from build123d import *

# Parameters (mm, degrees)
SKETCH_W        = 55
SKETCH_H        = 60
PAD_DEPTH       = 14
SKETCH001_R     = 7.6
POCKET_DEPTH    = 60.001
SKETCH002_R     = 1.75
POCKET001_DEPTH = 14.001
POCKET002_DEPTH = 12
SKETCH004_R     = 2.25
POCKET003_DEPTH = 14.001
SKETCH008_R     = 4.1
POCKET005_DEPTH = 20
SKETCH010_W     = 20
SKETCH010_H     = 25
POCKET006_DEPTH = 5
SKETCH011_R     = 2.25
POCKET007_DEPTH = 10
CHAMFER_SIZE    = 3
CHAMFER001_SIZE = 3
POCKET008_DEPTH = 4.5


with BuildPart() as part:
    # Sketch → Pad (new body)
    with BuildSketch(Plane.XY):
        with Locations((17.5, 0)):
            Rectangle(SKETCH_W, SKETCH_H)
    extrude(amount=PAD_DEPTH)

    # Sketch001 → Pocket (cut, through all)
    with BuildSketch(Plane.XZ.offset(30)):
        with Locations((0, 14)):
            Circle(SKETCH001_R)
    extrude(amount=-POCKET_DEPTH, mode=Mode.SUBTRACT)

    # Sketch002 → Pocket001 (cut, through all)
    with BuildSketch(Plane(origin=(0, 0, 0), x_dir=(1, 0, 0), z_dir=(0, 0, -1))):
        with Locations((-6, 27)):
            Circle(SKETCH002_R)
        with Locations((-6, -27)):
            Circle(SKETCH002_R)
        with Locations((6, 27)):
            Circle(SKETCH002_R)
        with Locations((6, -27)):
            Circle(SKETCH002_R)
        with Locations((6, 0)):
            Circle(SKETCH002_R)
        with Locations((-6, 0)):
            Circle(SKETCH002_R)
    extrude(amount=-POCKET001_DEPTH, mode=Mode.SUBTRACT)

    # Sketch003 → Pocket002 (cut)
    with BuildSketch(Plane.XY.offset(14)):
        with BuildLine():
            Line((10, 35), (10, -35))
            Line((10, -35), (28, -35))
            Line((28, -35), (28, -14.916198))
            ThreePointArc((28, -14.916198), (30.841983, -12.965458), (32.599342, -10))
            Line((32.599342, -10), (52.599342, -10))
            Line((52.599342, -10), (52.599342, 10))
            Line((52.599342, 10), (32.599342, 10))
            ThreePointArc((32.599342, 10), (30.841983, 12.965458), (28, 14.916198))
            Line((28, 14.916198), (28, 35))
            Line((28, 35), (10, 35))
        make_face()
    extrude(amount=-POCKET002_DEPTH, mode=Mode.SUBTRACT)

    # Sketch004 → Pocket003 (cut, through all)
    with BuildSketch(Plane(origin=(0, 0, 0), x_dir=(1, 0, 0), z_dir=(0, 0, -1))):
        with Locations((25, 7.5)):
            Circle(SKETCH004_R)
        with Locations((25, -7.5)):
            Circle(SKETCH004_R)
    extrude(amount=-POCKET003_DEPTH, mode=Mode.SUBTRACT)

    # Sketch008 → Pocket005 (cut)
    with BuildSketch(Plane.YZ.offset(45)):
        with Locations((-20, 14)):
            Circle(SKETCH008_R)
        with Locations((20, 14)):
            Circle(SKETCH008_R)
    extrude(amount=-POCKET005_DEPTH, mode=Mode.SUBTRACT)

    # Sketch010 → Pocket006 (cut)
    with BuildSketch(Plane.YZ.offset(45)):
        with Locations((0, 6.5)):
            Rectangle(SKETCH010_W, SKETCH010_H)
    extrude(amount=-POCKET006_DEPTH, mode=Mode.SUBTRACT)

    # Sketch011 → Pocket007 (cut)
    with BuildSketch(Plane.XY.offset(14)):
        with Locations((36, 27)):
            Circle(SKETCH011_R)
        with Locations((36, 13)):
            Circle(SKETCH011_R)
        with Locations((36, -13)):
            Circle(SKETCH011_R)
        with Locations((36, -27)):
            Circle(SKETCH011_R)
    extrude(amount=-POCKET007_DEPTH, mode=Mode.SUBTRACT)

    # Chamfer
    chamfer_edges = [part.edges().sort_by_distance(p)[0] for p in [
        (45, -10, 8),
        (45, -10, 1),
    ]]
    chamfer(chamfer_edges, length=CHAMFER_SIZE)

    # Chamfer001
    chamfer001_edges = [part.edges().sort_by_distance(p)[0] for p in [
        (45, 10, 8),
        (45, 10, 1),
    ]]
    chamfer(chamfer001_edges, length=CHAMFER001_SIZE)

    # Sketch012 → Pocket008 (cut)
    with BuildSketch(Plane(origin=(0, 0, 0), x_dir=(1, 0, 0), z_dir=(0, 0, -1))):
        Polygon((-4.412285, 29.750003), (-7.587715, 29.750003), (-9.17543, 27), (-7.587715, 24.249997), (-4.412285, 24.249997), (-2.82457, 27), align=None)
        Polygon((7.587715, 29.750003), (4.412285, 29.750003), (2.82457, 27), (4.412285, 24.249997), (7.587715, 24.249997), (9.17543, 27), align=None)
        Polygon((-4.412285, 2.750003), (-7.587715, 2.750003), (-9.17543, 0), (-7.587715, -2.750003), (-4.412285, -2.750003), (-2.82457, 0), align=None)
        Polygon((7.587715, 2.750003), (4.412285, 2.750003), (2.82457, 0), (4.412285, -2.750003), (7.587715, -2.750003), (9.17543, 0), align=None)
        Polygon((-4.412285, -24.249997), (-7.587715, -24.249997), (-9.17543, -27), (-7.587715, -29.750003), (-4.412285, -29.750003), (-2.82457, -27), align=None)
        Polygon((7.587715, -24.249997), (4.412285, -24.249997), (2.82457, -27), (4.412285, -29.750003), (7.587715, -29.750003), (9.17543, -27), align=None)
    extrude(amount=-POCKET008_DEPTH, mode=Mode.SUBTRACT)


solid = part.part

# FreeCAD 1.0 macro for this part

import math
import FreeCAD as App
import Part
import Sketcher
from FreeCAD import Vector
Q = App.Units.Quantity


def edges_at(feature, points):
    """Names of the edges that pass closest to the given points."""
    edges = feature.Shape.Edges
    near = lambda p: min(range(len(edges)), key=lambda i: edges[i].distToShape(Part.Vertex(*p))[0])
    return sorted({f"Edge{near(p) + 1}" for p in points})

doc = App.newDocument("Part")
body = doc.addObject("PartDesign::Body", "Body")

# Sketch on XY plane
sketch1 = body.newObject("Sketcher::SketchObject", "Sketch")
sketch1.AttachmentSupport = (doc.getObject("XY_Plane"), [""])
sketch1.MapMode = "FlatFace"
sketch1.addGeometry(Part.LineSegment(Vector(-10, 30, 0), Vector(-10, -30, 0)), False)
sketch1.addGeometry(Part.LineSegment(Vector(-10, -30, 0), Vector(45, -30, 0)), False)
sketch1.addGeometry(Part.LineSegment(Vector(45, -30, 0), Vector(45, 30, 0)), False)
sketch1.addGeometry(Part.LineSegment(Vector(45, 30, 0), Vector(-10, 30, 0)), False)
sketch1.addConstraint(Sketcher.Constraint("Coincident", 0, 2, 1, 1))
sketch1.addConstraint(Sketcher.Constraint("Coincident", 1, 2, 2, 1))
sketch1.addConstraint(Sketcher.Constraint("Coincident", 2, 2, 3, 1))
sketch1.addConstraint(Sketcher.Constraint("Coincident", 3, 2, 0, 1))
sketch1.addConstraint(Sketcher.Constraint("Vertical", 0))
sketch1.addConstraint(Sketcher.Constraint("Horizontal", 1))
sketch1.addConstraint(Sketcher.Constraint("Vertical", 2))
sketch1.addConstraint(Sketcher.Constraint("Horizontal", 3))
sketch1.addConstraint(Sketcher.Constraint("DistanceX", 1, 1, 1, 2, 55.0))
sketch1.addConstraint(Sketcher.Constraint("DistanceY", 0, 2, 0, 1, 60.0))
sketch1.addConstraint(Sketcher.Constraint("DistanceX", 0, 2, -1, 1, 10.0))
sketch1.addConstraint(Sketcher.Constraint("DistanceY", 0, 2, -1, 1, 30.0))
pad1 = body.newObject("PartDesign::Pad", "Pad")
pad1.Profile = sketch1
pad1.Length = 14

# Sketch on XZ plane
sketch2 = body.newObject("Sketcher::SketchObject", "Sketch001")
sketch2.AttachmentSupport = (doc.getObject("XZ_Plane"), [""])
sketch2.MapMode = "FlatFace"
sketch2.AttachmentOffset = App.Placement(Vector(0, 0, 30), App.Rotation())
sketch2.addGeometry(Part.Circle(Vector(0, 14, 0), Vector(0, 0, 1), 7.6), False)
sketch2.addConstraint(Sketcher.Constraint("PointOnObject", 0, 3, -2))
sketch2.addConstraint(Sketcher.Constraint("Diameter", 0, 15.2))
sketch2.addConstraint(Sketcher.Constraint("DistanceY", -1, 1, 0, 3, 14.0))
pocket1 = body.newObject("PartDesign::Pocket", "Pocket")
pocket1.Profile = sketch2
pocket1.Type = "ThroughAll"

# Sketch on XY plane
sketch3 = body.newObject("Sketcher::SketchObject", "Sketch002")
sketch3.AttachmentSupport = (doc.getObject("XY_Plane"), [""])
sketch3.MapMode = "FlatFace"
sketch3.addGeometry(Part.Circle(Vector(-6, -27, 0), Vector(0, 0, 1), 1.75), False)
sketch3.addGeometry(Part.Circle(Vector(-6, 27, 0), Vector(0, 0, 1), 1.75), False)
sketch3.addGeometry(Part.Circle(Vector(6, -27, 0), Vector(0, 0, 1), 1.75), False)
sketch3.addGeometry(Part.Circle(Vector(6, 27, 0), Vector(0, 0, 1), 1.75), False)
sketch3.addGeometry(Part.Circle(Vector(6, 0, 0), Vector(0, 0, 1), 1.75), False)
sketch3.addGeometry(Part.Circle(Vector(-6, 0, 0), Vector(0, 0, 1), 1.75), False)
sketch3.addConstraint(Sketcher.Constraint("Equal", 0, 1))
sketch3.addConstraint(Sketcher.Constraint("Equal", 1, 2))
sketch3.addConstraint(Sketcher.Constraint("Equal", 2, 3))
sketch3.addConstraint(Sketcher.Constraint("Equal", 3, 4))
sketch3.addConstraint(Sketcher.Constraint("Equal", 4, 5))
sketch3.addConstraint(Sketcher.Constraint("Symmetric", 1, 3, 2, 3, -1, 1))
sketch3.addConstraint(Sketcher.Constraint("Symmetric", 0, 3, 3, 3, -1, 1))
sketch3.addConstraint(Sketcher.Constraint("Symmetric", 4, 3, 5, 3, -1, 1))
sketch3.addConstraint(Sketcher.Constraint("Symmetric", 0, 3, 2, 3, -2))
sketch3.addConstraint(Sketcher.Constraint("PointOnObject", 4, 3, -1))
sketch3.addConstraint(Sketcher.Constraint("Vertical", 3, 3, 4, 3))
sketch3.addConstraint(Sketcher.Constraint("Diameter", 0, 3.5))
sketch3.addConstraint(Sketcher.Constraint("DistanceX", 0, 3, -1, 1, 6.0))
sketch3.addConstraint(Sketcher.Constraint("DistanceY", 0, 3, -1, 1, 27.0))
pocket2 = body.newObject("PartDesign::Pocket", "Pocket001")
pocket2.Profile = sketch3
pocket2.Type = "ThroughAll"
pocket2.Reversed = True

# Sketch on XY plane
sketch4 = body.newObject("Sketcher::SketchObject", "Sketch003")
sketch4.AttachmentSupport = (doc.getObject("XY_Plane"), [""])
sketch4.MapMode = "FlatFace"
sketch4.AttachmentOffset = App.Placement(Vector(0, 0, 14), App.Rotation())
sketch4.addGeometry(Part.LineSegment(Vector(10, 35, 0), Vector(10, -35, 0)), False)
sketch4.addGeometry(Part.LineSegment(Vector(10, -35, 0), Vector(28, -35, 0)), False)
sketch4.addGeometry(Part.LineSegment(Vector(28, -35, 0), Vector(28, -14.916198, 0)), False)
sketch4.addGeometry(Part.ArcOfCircle(Part.Circle(Vector(25.000001, -7.5, 0), Vector(0, 0, 1), 7.999999), math.radians(-67.97569), math.radians(-18.209958)), False)
sketch4.addGeometry(Part.LineSegment(Vector(32.599342, -10, 0), Vector(52.599342, -10, 0)), False)
sketch4.addGeometry(Part.LineSegment(Vector(52.599342, -10, 0), Vector(52.599342, 10, 0)), False)
sketch4.addGeometry(Part.LineSegment(Vector(52.599342, 10, 0), Vector(32.599342, 10, 0)), False)
sketch4.addGeometry(Part.ArcOfCircle(Part.Circle(Vector(25.000001, 7.5, 0), Vector(0, 0, 1), 7.999999), math.radians(18.209958), math.radians(67.97569)), False)
sketch4.addGeometry(Part.LineSegment(Vector(28, 14.916198, 0), Vector(28, 35, 0)), False)
sketch4.addGeometry(Part.LineSegment(Vector(28, 35, 0), Vector(10, 35, 0)), False)
sketch4.addConstraint(Sketcher.Constraint("Coincident", 0, 2, 1, 1))
sketch4.addConstraint(Sketcher.Constraint("Coincident", 1, 2, 2, 1))
sketch4.addConstraint(Sketcher.Constraint("Coincident", 2, 2, 3, 1))
sketch4.addConstraint(Sketcher.Constraint("Coincident", 3, 2, 4, 1))
sketch4.addConstraint(Sketcher.Constraint("Coincident", 4, 2, 5, 1))
sketch4.addConstraint(Sketcher.Constraint("Coincident", 5, 2, 6, 1))
sketch4.addConstraint(Sketcher.Constraint("Coincident", 6, 2, 7, 1))
sketch4.addConstraint(Sketcher.Constraint("Coincident", 7, 2, 8, 1))
sketch4.addConstraint(Sketcher.Constraint("Coincident", 8, 2, 9, 1))
sketch4.addConstraint(Sketcher.Constraint("Coincident", 9, 2, 0, 1))
sketch4.addConstraint(Sketcher.Constraint("Vertical", 0))
sketch4.addConstraint(Sketcher.Constraint("Horizontal", 1))
sketch4.addConstraint(Sketcher.Constraint("Vertical", 2))
sketch4.addConstraint(Sketcher.Constraint("Horizontal", 4))
sketch4.addConstraint(Sketcher.Constraint("Vertical", 5))
sketch4.addConstraint(Sketcher.Constraint("Horizontal", 6))
sketch4.addConstraint(Sketcher.Constraint("Vertical", 8))
sketch4.addConstraint(Sketcher.Constraint("Horizontal", 9))
sketch4.addConstraint(Sketcher.Constraint("Equal", 3, 7))
sketch4.addConstraint(Sketcher.Constraint("Symmetric", 3, 3, 7, 3, -1))
sketch4.addConstraint(Sketcher.Constraint("Symmetric", 1, 2, 8, 2, -1))
sketch4.addConstraint(Sketcher.Constraint("Vertical", 3, 2, 6, 2))
sketch4.addConstraint(Sketcher.Constraint("Equal", 6, 5))
sketch4.addConstraint(Sketcher.Constraint("Radius", 3, 7.999999))
sketch4.addConstraint(Sketcher.Constraint("DistanceX", 1, 1, 1, 2, 18.0))
sketch4.addConstraint(Sketcher.Constraint("DistanceX", 4, 1, 4, 2, 20.0))
sketch4.addConstraint(Sketcher.Constraint("DistanceY", 0, 2, 0, 1, 70.0))
sketch4.addConstraint(Sketcher.Constraint("DistanceX", -1, 1, 3, 3, 25.000001))
sketch4.addConstraint(Sketcher.Constraint("DistanceX", -1, 1, 0, 2, 10.0))
sketch4.addConstraint(Sketcher.Constraint("DistanceY", 3, 3, 7, 3, 15.0))
pocket3 = body.newObject("PartDesign::Pocket", "Pocket002")
pocket3.Profile = sketch4
pocket3.Length = 12

# Sketch on XY plane
sketch5 = body.newObject("Sketcher::SketchObject", "Sketch004")
sketch5.AttachmentSupport = (doc.getObject("XY_Plane"), [""])
sketch5.MapMode = "FlatFace"
sketch5.addGeometry(Part.Circle(Vector(25, -7.5, 0), Vector(0, 0, 1), 2.25), False)
sketch5.addGeometry(Part.Circle(Vector(25, 7.5, 0), Vector(0, 0, 1), 2.25), False)
sketch5.addConstraint(Sketcher.Constraint("Equal", 0, 1))
sketch5.addConstraint(Sketcher.Constraint("Symmetric", 0, 3, 1, 3, -1))
sketch5.addConstraint(Sketcher.Constraint("Diameter", 0, 4.5))
sketch5.addConstraint(Sketcher.Constraint("DistanceX", -1, 1, 0, 3, 25.0))
sketch5.addConstraint(Sketcher.Constraint("DistanceY", 0, 3, 1, 3, 15.0))
pocket4 = body.newObject("PartDesign::Pocket", "Pocket003")
pocket4.Profile = sketch5
pocket4.Type = "ThroughAll"
pocket4.Reversed = True

# Sketch on YZ plane
sketch6 = body.newObject("Sketcher::SketchObject", "Sketch005")
sketch6.AttachmentSupport = (doc.getObject("YZ_Plane"), [""])
sketch6.MapMode = "FlatFace"
sketch6.AttachmentOffset = App.Placement(Vector(0, 0, 45), App.Rotation())
sketch6.addGeometry(Part.Circle(Vector(-20, 14, 0), Vector(0, 0, 1), 4.1), False)
sketch6.addGeometry(Part.Circle(Vector(20, 14, 0), Vector(0, 0, 1), 4.1), False)
sketch6.addConstraint(Sketcher.Constraint("Equal", 0, 1))
sketch6.addConstraint(Sketcher.Constraint("Symmetric", 0, 3, 1, 3, -2))
sketch6.addConstraint(Sketcher.Constraint("Diameter", 0, 8.2))
sketch6.addConstraint(Sketcher.Constraint("DistanceX", 0, 3, -1, 1, 20.0))
sketch6.addConstraint(Sketcher.Constraint("DistanceY", -1, 1, 0, 3, 14.0))
pocket5 = body.newObject("PartDesign::Pocket", "Pocket004")
pocket5.Profile = sketch6
pocket5.Length = 20

# Sketch on YZ plane
sketch7 = body.newObject("Sketcher::SketchObject", "Sketch006")
sketch7.AttachmentSupport = (doc.getObject("YZ_Plane"), [""])
sketch7.MapMode = "FlatFace"
sketch7.AttachmentOffset = App.Placement(Vector(0, 0, 45), App.Rotation())
sketch7.addGeometry(Part.LineSegment(Vector(-10, 19, 0), Vector(-10, -6, 0)), False)
sketch7.addGeometry(Part.LineSegment(Vector(-10, -6, 0), Vector(10, -6, 0)), False)
sketch7.addGeometry(Part.LineSegment(Vector(10, -6, 0), Vector(10, 19, 0)), False)
sketch7.addGeometry(Part.LineSegment(Vector(10, 19, 0), Vector(-10, 19, 0)), False)
sketch7.addConstraint(Sketcher.Constraint("Coincident", 0, 2, 1, 1))
sketch7.addConstraint(Sketcher.Constraint("Coincident", 1, 2, 2, 1))
sketch7.addConstraint(Sketcher.Constraint("Coincident", 2, 2, 3, 1))
sketch7.addConstraint(Sketcher.Constraint("Coincident", 3, 2, 0, 1))
sketch7.addConstraint(Sketcher.Constraint("Vertical", 0))
sketch7.addConstraint(Sketcher.Constraint("Horizontal", 1))
sketch7.addConstraint(Sketcher.Constraint("Vertical", 2))
sketch7.addConstraint(Sketcher.Constraint("Horizontal", 3))
sketch7.addConstraint(Sketcher.Constraint("DistanceX", 1, 1, 1, 2, 20.0))
sketch7.addConstraint(Sketcher.Constraint("DistanceY", 0, 2, 0, 1, 25.0))
sketch7.addConstraint(Sketcher.Constraint("DistanceX", 0, 2, -1, 1, 10.0))
sketch7.addConstraint(Sketcher.Constraint("DistanceY", 0, 2, -1, 1, 6.0))
pocket6 = body.newObject("PartDesign::Pocket", "Pocket005")
pocket6.Profile = sketch7
pocket6.Length = 5

# Sketch on XY plane
sketch8 = body.newObject("Sketcher::SketchObject", "Sketch007")
sketch8.AttachmentSupport = (doc.getObject("XY_Plane"), [""])
sketch8.MapMode = "FlatFace"
sketch8.AttachmentOffset = App.Placement(Vector(0, 0, 14), App.Rotation())
sketch8.addGeometry(Part.Circle(Vector(36, 27, 0), Vector(0, 0, 1), 2.25), False)
sketch8.addGeometry(Part.Circle(Vector(36, 13, 0), Vector(0, 0, 1), 2.25), False)
sketch8.addGeometry(Part.Circle(Vector(36, -13, 0), Vector(0, 0, 1), 2.25), False)
sketch8.addGeometry(Part.Circle(Vector(36, -27, 0), Vector(0, 0, 1), 2.25), False)
sketch8.addConstraint(Sketcher.Constraint("Equal", 0, 1))
sketch8.addConstraint(Sketcher.Constraint("Equal", 1, 2))
sketch8.addConstraint(Sketcher.Constraint("Equal", 2, 3))
sketch8.addConstraint(Sketcher.Constraint("Symmetric", 1, 3, 2, 3, -1))
sketch8.addConstraint(Sketcher.Constraint("Symmetric", 0, 3, 3, 3, -1))
sketch8.addConstraint(Sketcher.Constraint("Vertical", 0, 3, 1, 3))
sketch8.addConstraint(Sketcher.Constraint("Diameter", 0, 4.5))
sketch8.addConstraint(Sketcher.Constraint("DistanceX", -1, 1, 0, 3, 36.0))
sketch8.addConstraint(Sketcher.Constraint("DistanceY", -1, 1, 0, 3, 27.0))
sketch8.addConstraint(Sketcher.Constraint("DistanceY", -1, 1, 1, 3, 13.0))
pocket7 = body.newObject("PartDesign::Pocket", "Pocket006")
pocket7.Profile = sketch8
pocket7.Length = 10
doc.recompute()

chamfer = body.newObject("PartDesign::Chamfer", "Chamfer")
chamfer.Base = (pocket7, edges_at(pocket7, [(45, -10, 7), (45, -10, 7)]))
chamfer.Size = 3
doc.recompute()

chamfer2 = body.newObject("PartDesign::Chamfer", "Chamfer001")
chamfer2.Base = (chamfer, edges_at(chamfer, [(45, 10, 7), (45, 10, 7)]))
chamfer2.Size = 3

# Sketch on XY plane
sketch9 = body.newObject("Sketcher::SketchObject", "Sketch008")
sketch9.AttachmentSupport = (doc.getObject("XY_Plane"), [""])
sketch9.MapMode = "FlatFace"
sketch9.addGeometry(Part.LineSegment(Vector(-4.412285, -29.750003, 0), Vector(-7.587715, -29.750003, 0)), False)
sketch9.addGeometry(Part.LineSegment(Vector(-7.587715, -29.750003, 0), Vector(-9.17543, -27, 0)), False)
sketch9.addGeometry(Part.LineSegment(Vector(-9.17543, -27, 0), Vector(-7.587715, -24.249997, 0)), False)
sketch9.addGeometry(Part.LineSegment(Vector(-7.587715, -24.249997, 0), Vector(-4.412285, -24.249997, 0)), False)
sketch9.addGeometry(Part.LineSegment(Vector(-4.412285, -24.249997, 0), Vector(-2.82457, -27, 0)), False)
sketch9.addGeometry(Part.LineSegment(Vector(-2.82457, -27, 0), Vector(-4.412285, -29.750003, 0)), False)
sketch9.addGeometry(Part.LineSegment(Vector(7.587715, -29.750003, 0), Vector(4.412285, -29.750003, 0)), False)
sketch9.addGeometry(Part.LineSegment(Vector(4.412285, -29.750003, 0), Vector(2.82457, -27, 0)), False)
sketch9.addGeometry(Part.LineSegment(Vector(2.82457, -27, 0), Vector(4.412285, -24.249997, 0)), False)
sketch9.addGeometry(Part.LineSegment(Vector(4.412285, -24.249997, 0), Vector(7.587715, -24.249997, 0)), False)
sketch9.addGeometry(Part.LineSegment(Vector(7.587715, -24.249997, 0), Vector(9.17543, -27, 0)), False)
sketch9.addGeometry(Part.LineSegment(Vector(9.17543, -27, 0), Vector(7.587715, -29.750003, 0)), False)
sketch9.addGeometry(Part.LineSegment(Vector(-4.412285, -2.750003, 0), Vector(-7.587715, -2.750003, 0)), False)
sketch9.addGeometry(Part.LineSegment(Vector(-7.587715, -2.750003, 0), Vector(-9.17543, 0, 0)), False)
sketch9.addGeometry(Part.LineSegment(Vector(-9.17543, 0, 0), Vector(-7.587715, 2.750003, 0)), False)
sketch9.addGeometry(Part.LineSegment(Vector(-7.587715, 2.750003, 0), Vector(-4.412285, 2.750003, 0)), False)
sketch9.addGeometry(Part.LineSegment(Vector(-4.412285, 2.750003, 0), Vector(-2.82457, 0, 0)), False)
sketch9.addGeometry(Part.LineSegment(Vector(-2.82457, 0, 0), Vector(-4.412285, -2.750003, 0)), False)
sketch9.addGeometry(Part.LineSegment(Vector(7.587715, -2.750003, 0), Vector(4.412285, -2.750003, 0)), False)
sketch9.addGeometry(Part.LineSegment(Vector(4.412285, -2.750003, 0), Vector(2.82457, 0, 0)), False)
sketch9.addGeometry(Part.LineSegment(Vector(2.82457, 0, 0), Vector(4.412285, 2.750003, 0)), False)
sketch9.addGeometry(Part.LineSegment(Vector(4.412285, 2.750003, 0), Vector(7.587715, 2.750003, 0)), False)
sketch9.addGeometry(Part.LineSegment(Vector(7.587715, 2.750003, 0), Vector(9.17543, 0, 0)), False)
sketch9.addGeometry(Part.LineSegment(Vector(9.17543, 0, 0), Vector(7.587715, -2.750003, 0)), False)
sketch9.addGeometry(Part.LineSegment(Vector(-4.412285, 24.249997, 0), Vector(-7.587715, 24.249997, 0)), False)
sketch9.addGeometry(Part.LineSegment(Vector(-7.587715, 24.249997, 0), Vector(-9.17543, 27, 0)), False)
sketch9.addGeometry(Part.LineSegment(Vector(-9.17543, 27, 0), Vector(-7.587715, 29.750003, 0)), False)
sketch9.addGeometry(Part.LineSegment(Vector(-7.587715, 29.750003, 0), Vector(-4.412285, 29.750003, 0)), False)
sketch9.addGeometry(Part.LineSegment(Vector(-4.412285, 29.750003, 0), Vector(-2.82457, 27, 0)), False)
sketch9.addGeometry(Part.LineSegment(Vector(-2.82457, 27, 0), Vector(-4.412285, 24.249997, 0)), False)
sketch9.addGeometry(Part.LineSegment(Vector(7.587715, 24.249997, 0), Vector(4.412285, 24.249997, 0)), False)
sketch9.addGeometry(Part.LineSegment(Vector(4.412285, 24.249997, 0), Vector(2.82457, 27, 0)), False)
sketch9.addGeometry(Part.LineSegment(Vector(2.82457, 27, 0), Vector(4.412285, 29.750003, 0)), False)
sketch9.addGeometry(Part.LineSegment(Vector(4.412285, 29.750003, 0), Vector(7.587715, 29.750003, 0)), False)
sketch9.addGeometry(Part.LineSegment(Vector(7.587715, 29.750003, 0), Vector(9.17543, 27, 0)), False)
sketch9.addGeometry(Part.LineSegment(Vector(9.17543, 27, 0), Vector(7.587715, 24.249997, 0)), False)
sketch9.addConstraint(Sketcher.Constraint("Coincident", 0, 2, 1, 1))
sketch9.addConstraint(Sketcher.Constraint("Coincident", 1, 2, 2, 1))
sketch9.addConstraint(Sketcher.Constraint("Coincident", 2, 2, 3, 1))
sketch9.addConstraint(Sketcher.Constraint("Coincident", 3, 2, 4, 1))
sketch9.addConstraint(Sketcher.Constraint("Coincident", 4, 2, 5, 1))
sketch9.addConstraint(Sketcher.Constraint("Coincident", 5, 2, 0, 1))
sketch9.addConstraint(Sketcher.Constraint("Coincident", 6, 2, 7, 1))
sketch9.addConstraint(Sketcher.Constraint("Coincident", 7, 2, 8, 1))
sketch9.addConstraint(Sketcher.Constraint("Coincident", 8, 2, 9, 1))
sketch9.addConstraint(Sketcher.Constraint("Coincident", 9, 2, 10, 1))
sketch9.addConstraint(Sketcher.Constraint("Coincident", 10, 2, 11, 1))
sketch9.addConstraint(Sketcher.Constraint("Coincident", 11, 2, 6, 1))
sketch9.addConstraint(Sketcher.Constraint("Coincident", 12, 2, 13, 1))
sketch9.addConstraint(Sketcher.Constraint("Coincident", 13, 2, 14, 1))
sketch9.addConstraint(Sketcher.Constraint("Coincident", 14, 2, 15, 1))
sketch9.addConstraint(Sketcher.Constraint("Coincident", 15, 2, 16, 1))
sketch9.addConstraint(Sketcher.Constraint("Coincident", 16, 2, 17, 1))
sketch9.addConstraint(Sketcher.Constraint("Coincident", 17, 2, 12, 1))
sketch9.addConstraint(Sketcher.Constraint("Coincident", 18, 2, 19, 1))
sketch9.addConstraint(Sketcher.Constraint("Coincident", 19, 2, 20, 1))
sketch9.addConstraint(Sketcher.Constraint("Coincident", 20, 2, 21, 1))
sketch9.addConstraint(Sketcher.Constraint("Coincident", 21, 2, 22, 1))
sketch9.addConstraint(Sketcher.Constraint("Coincident", 22, 2, 23, 1))
sketch9.addConstraint(Sketcher.Constraint("Coincident", 23, 2, 18, 1))
sketch9.addConstraint(Sketcher.Constraint("Coincident", 24, 2, 25, 1))
sketch9.addConstraint(Sketcher.Constraint("Coincident", 25, 2, 26, 1))
sketch9.addConstraint(Sketcher.Constraint("Coincident", 26, 2, 27, 1))
sketch9.addConstraint(Sketcher.Constraint("Coincident", 27, 2, 28, 1))
sketch9.addConstraint(Sketcher.Constraint("Coincident", 28, 2, 29, 1))
sketch9.addConstraint(Sketcher.Constraint("Coincident", 29, 2, 24, 1))
sketch9.addConstraint(Sketcher.Constraint("Coincident", 30, 2, 31, 1))
sketch9.addConstraint(Sketcher.Constraint("Coincident", 31, 2, 32, 1))
sketch9.addConstraint(Sketcher.Constraint("Coincident", 32, 2, 33, 1))
sketch9.addConstraint(Sketcher.Constraint("Coincident", 33, 2, 34, 1))
sketch9.addConstraint(Sketcher.Constraint("Coincident", 34, 2, 35, 1))
sketch9.addConstraint(Sketcher.Constraint("Coincident", 35, 2, 30, 1))
sketch9.addConstraint(Sketcher.Constraint("Horizontal", 0))
sketch9.addConstraint(Sketcher.Constraint("Horizontal", 3))
sketch9.addConstraint(Sketcher.Constraint("Horizontal", 6))
sketch9.addConstraint(Sketcher.Constraint("Horizontal", 9))
sketch9.addConstraint(Sketcher.Constraint("Horizontal", 12))
sketch9.addConstraint(Sketcher.Constraint("Horizontal", 15))
sketch9.addConstraint(Sketcher.Constraint("Horizontal", 18))
sketch9.addConstraint(Sketcher.Constraint("Horizontal", 21))
sketch9.addConstraint(Sketcher.Constraint("Horizontal", 24))
sketch9.addConstraint(Sketcher.Constraint("Horizontal", 27))
sketch9.addConstraint(Sketcher.Constraint("Horizontal", 30))
sketch9.addConstraint(Sketcher.Constraint("Horizontal", 33))
sketch9.addConstraint(Sketcher.Constraint("Symmetric", 15, 2, 18, 2, -1, 1))
sketch9.addConstraint(Sketcher.Constraint("Symmetric", 16, 2, 19, 2, -1, 1))
sketch9.addConstraint(Sketcher.Constraint("Symmetric", 17, 2, 20, 2, -1, 1))
sketch9.addConstraint(Sketcher.Constraint("Symmetric", 13, 2, 22, 2, -1, 1))
sketch9.addConstraint(Sketcher.Constraint("Symmetric", 9, 2, 24, 2, -1, 1))
sketch9.addConstraint(Sketcher.Constraint("Symmetric", 10, 2, 25, 2, -1, 1))
sketch9.addConstraint(Sketcher.Constraint("Symmetric", 11, 2, 26, 2, -1, 1))
sketch9.addConstraint(Sketcher.Constraint("Symmetric", 7, 2, 28, 2, -1, 1))
sketch9.addConstraint(Sketcher.Constraint("Symmetric", 3, 2, 30, 2, -1, 1))
sketch9.addConstraint(Sketcher.Constraint("Symmetric", 4, 2, 31, 2, -1, 1))
sketch9.addConstraint(Sketcher.Constraint("Symmetric", 5, 2, 32, 2, -1, 1))
sketch9.addConstraint(Sketcher.Constraint("Symmetric", 1, 2, 34, 2, -1, 1))
sketch9.addConstraint(Sketcher.Constraint("Symmetric", 5, 2, 6, 2, -2))
sketch9.addConstraint(Sketcher.Constraint("Symmetric", 4, 2, 7, 2, -2))
sketch9.addConstraint(Sketcher.Constraint("Symmetric", 3, 2, 8, 2, -2))
sketch9.addConstraint(Sketcher.Constraint("Symmetric", 1, 2, 10, 2, -2))
sketch9.addConstraint(Sketcher.Constraint("Symmetric", 17, 2, 18, 2, -2))
sketch9.addConstraint(Sketcher.Constraint("PointOnObject", 13, 2, -1))
sketch9.addConstraint(Sketcher.Constraint("PointOnObject", 16, 2, -1))
sketch9.addConstraint(Sketcher.Constraint("Parallel", 1, 4))
sketch9.addConstraint(Sketcher.Constraint("Parallel", 2, 5))
sketch9.addConstraint(Sketcher.Constraint("Parallel", 4, 7))
sketch9.addConstraint(Sketcher.Constraint("Parallel", 7, 10))
sketch9.addConstraint(Sketcher.Constraint("Parallel", 8, 11))
sketch9.addConstraint(Sketcher.Constraint("Parallel", 10, 13))
sketch9.addConstraint(Sketcher.Constraint("Parallel", 11, 14))
sketch9.addConstraint(Sketcher.Constraint("Parallel", 13, 16))
sketch9.addConstraint(Sketcher.Constraint("Parallel", 19, 22))
sketch9.addConstraint(Sketcher.Constraint("Parallel", 20, 23))
sketch9.addConstraint(Sketcher.Constraint("Parallel", 25, 28))
sketch9.addConstraint(Sketcher.Constraint("Parallel", 26, 29))
sketch9.addConstraint(Sketcher.Constraint("Parallel", 31, 34))
sketch9.addConstraint(Sketcher.Constraint("Parallel", 32, 35))
sketch9.addConstraint(Sketcher.Constraint("Horizontal", 1, 2, 4, 2))
sketch9.addConstraint(Sketcher.Constraint("Vertical", 0, 2, 2, 2))
sketch9.addConstraint(Sketcher.Constraint("Vertical", 2, 2, 12, 2))
sketch9.addConstraint(Sketcher.Constraint("Vertical", 1, 2, 13, 2))
sketch9.addConstraint(Sketcher.Constraint("Vertical", 5, 2, 15, 2))
sketch9.addConstraint(Sketcher.Constraint("Angle", 1, Q("120 deg")))
sketch9.addConstraint(Sketcher.Constraint("DistanceY", 1, 2, -1, 1, 27.0))
sketch9.addConstraint(Sketcher.Constraint("DistanceX", 0, 2, 6, 2, 12.0))
sketch9.addConstraint(Sketcher.Constraint("DistanceX", 0, 2, 0, 1, 3.17543))
sketch9.addConstraint(Sketcher.Constraint("Distance", 1, 3.17543))
pocket8 = body.newObject("PartDesign::Pocket", "Pocket007")
pocket8.Profile = sketch9
pocket8.Length = 4.5
pocket8.Reversed = True

doc.recompute()
